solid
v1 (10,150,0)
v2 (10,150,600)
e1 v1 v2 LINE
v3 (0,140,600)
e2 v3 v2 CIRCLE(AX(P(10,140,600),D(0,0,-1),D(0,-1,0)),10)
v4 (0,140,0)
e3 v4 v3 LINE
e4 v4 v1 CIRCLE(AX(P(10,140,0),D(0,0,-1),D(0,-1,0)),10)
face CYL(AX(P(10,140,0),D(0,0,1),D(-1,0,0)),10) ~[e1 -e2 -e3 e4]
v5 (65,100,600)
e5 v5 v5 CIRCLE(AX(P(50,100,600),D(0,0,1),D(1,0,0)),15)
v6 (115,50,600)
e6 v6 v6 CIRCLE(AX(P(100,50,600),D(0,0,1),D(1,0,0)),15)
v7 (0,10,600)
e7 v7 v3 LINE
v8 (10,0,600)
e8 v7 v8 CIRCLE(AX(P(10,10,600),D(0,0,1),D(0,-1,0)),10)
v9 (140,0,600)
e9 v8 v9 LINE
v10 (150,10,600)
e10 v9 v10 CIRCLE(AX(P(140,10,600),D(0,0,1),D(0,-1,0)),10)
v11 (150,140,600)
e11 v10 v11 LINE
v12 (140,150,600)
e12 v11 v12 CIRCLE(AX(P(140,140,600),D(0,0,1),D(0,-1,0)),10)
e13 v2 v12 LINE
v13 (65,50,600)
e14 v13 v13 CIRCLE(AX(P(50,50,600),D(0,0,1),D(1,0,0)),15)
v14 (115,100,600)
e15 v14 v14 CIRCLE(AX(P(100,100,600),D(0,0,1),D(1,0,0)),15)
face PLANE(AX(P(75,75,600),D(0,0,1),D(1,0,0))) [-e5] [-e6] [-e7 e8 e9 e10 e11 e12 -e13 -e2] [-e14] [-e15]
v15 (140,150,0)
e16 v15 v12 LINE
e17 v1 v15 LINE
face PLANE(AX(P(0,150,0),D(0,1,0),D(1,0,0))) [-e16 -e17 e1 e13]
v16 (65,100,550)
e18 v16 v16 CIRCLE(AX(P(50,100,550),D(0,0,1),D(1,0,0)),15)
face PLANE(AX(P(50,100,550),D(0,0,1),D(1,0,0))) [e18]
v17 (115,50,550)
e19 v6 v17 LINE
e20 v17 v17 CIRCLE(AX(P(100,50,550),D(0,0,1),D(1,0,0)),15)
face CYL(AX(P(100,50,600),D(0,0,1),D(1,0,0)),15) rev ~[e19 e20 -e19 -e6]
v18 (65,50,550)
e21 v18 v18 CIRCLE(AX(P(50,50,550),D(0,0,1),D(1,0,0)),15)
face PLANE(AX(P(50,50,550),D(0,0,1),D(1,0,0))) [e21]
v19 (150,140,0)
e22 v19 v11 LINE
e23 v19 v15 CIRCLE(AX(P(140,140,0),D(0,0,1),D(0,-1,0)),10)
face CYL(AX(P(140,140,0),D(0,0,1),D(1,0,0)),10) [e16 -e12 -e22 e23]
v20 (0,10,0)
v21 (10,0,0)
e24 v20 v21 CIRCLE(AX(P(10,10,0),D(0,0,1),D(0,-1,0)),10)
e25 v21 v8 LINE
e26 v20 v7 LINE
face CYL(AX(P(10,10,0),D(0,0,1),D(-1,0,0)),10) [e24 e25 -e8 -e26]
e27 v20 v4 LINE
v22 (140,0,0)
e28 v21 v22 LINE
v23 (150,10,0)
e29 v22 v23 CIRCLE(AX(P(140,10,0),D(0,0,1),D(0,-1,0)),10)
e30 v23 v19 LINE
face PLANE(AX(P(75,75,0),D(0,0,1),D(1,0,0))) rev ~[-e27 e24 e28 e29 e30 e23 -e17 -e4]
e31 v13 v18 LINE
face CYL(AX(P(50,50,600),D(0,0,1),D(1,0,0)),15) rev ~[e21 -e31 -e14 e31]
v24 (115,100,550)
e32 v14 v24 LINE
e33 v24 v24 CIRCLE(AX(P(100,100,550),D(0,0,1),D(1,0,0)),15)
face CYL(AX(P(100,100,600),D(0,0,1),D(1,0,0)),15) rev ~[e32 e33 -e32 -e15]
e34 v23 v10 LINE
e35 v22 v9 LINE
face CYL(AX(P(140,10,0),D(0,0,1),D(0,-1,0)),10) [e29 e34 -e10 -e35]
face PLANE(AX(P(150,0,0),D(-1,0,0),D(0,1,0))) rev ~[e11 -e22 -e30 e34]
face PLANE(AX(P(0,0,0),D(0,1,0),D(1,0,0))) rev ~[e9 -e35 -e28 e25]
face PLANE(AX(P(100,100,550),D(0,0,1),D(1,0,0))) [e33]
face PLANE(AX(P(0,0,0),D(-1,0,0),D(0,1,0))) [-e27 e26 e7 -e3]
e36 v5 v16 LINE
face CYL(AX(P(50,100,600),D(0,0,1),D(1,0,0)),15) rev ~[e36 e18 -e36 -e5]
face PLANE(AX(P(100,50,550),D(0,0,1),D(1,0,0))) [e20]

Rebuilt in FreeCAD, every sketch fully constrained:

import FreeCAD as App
import Part
import Sketcher


def edges_at(feature, points):
    """Names of the edges that pass closest to the given points."""
    edges = feature.Shape.Edges
    near = lambda p: min(range(len(edges)), key=lambda i: edges[i].distToShape(Part.Vertex(*p))[0])
    return sorted({f"Edge{near(p) + 1}" for p in points})

doc = App.newDocument("Part")
body = doc.addObject("PartDesign::Body", "Body")

sketch1 = body.newObject("Sketcher::SketchObject", "Sketch")
sketch1.AttachmentSupport = (doc.getObject("XY_Plane"), [""])
sketch1.MapMode = "FlatFace"
sketch1.addGeometry([
    Part.LineSegment(App.Vector(0, 150, 0), App.Vector(0, 0, 0)),
    Part.LineSegment(App.Vector(0, 0, 0), App.Vector(150, 0, 0)),
    Part.LineSegment(App.Vector(150, 0, 0), App.Vector(150, 150, 0)),
    Part.LineSegment(App.Vector(150, 150, 0), App.Vector(0, 150, 0)),
], False)
sketch1.addConstraint([
    Sketcher.Constraint("Coincident", 0, 2, 1, 1),
    Sketcher.Constraint("Coincident", 1, 2, 2, 1),
    Sketcher.Constraint("Coincident", 2, 2, 3, 1),
    Sketcher.Constraint("Coincident", 3, 2, 0, 1),
    Sketcher.Constraint("Vertical", 0),
    Sketcher.Constraint("Horizontal", 1),
    Sketcher.Constraint("Vertical", 2),
    Sketcher.Constraint("Horizontal", 3),
    Sketcher.Constraint("Coincident", 0, 2, -1, 1),
    Sketcher.Constraint("Equal", 3, 0),
    Sketcher.Constraint("DistanceX", 1, 1, 1, 2, 150.0),
])
pad1 = body.newObject("PartDesign::Pad", "Pad")
pad1.Profile = sketch1
pad1.Length = 600
doc.recompute()

fillet = body.newObject("PartDesign::Fillet", "Fillet")
fillet.Base = (pad1, edges_at(pad1, [
    (0, 150, 300),
    (150, 150, 300),
    (150, 0, 300),
    (0, 0, 300),
]))
fillet.Radius = 10

sketch2 = body.newObject("Sketcher::SketchObject", "Sketch001")
sketch2.AttachmentSupport = (doc.getObject("XY_Plane"), [""])
sketch2.MapMode = "FlatFace"
sketch2.AttachmentOffset = App.Placement(App.Vector(0, 0, 600), App.Rotation())
sketch2.addGeometry([
    Part.Circle(App.Vector(50, 100, 0), App.Vector(0, 0, 1), 15),
    Part.Circle(App.Vector(100, 100, 0), App.Vector(0, 0, 1), 15),
    Part.Circle(App.Vector(100, 50, 0), App.Vector(0, 0, 1), 15),
    Part.Circle(App.Vector(50, 50, 0), App.Vector(0, 0, 1), 15),
], False)
sketch2.addConstraint([
    Sketcher.Constraint("Equal", 0, 1),
    Sketcher.Constraint("Equal", 1, 2),
    Sketcher.Constraint("Equal", 2, 3),
    Sketcher.Constraint("Horizontal", 0, 3, 1, 3),
    Sketcher.Constraint("Horizontal", 2, 3, 3, 3),
    Sketcher.Constraint("Vertical", 1, 3, 2, 3),
    Sketcher.Constraint("Vertical", 0, 3, 3, 3),
    Sketcher.Constraint("Diameter", 0, 30.0),
    Sketcher.Constraint("DistanceX", -1, 1, 0, 3, 50.0),
    Sketcher.Constraint("DistanceY", -1, 1, 0, 3, 100.0),
    Sketcher.Constraint("DistanceX", -1, 1, 1, 3, 100.0),
    Sketcher.Constraint("DistanceY", -1, 1, 2, 3, 50.0),
])
pocket1 = body.newObject("PartDesign::Pocket", "Pocket")
pocket1.Profile = sketch2
pocket1.Length = 50

doc.recompute()
